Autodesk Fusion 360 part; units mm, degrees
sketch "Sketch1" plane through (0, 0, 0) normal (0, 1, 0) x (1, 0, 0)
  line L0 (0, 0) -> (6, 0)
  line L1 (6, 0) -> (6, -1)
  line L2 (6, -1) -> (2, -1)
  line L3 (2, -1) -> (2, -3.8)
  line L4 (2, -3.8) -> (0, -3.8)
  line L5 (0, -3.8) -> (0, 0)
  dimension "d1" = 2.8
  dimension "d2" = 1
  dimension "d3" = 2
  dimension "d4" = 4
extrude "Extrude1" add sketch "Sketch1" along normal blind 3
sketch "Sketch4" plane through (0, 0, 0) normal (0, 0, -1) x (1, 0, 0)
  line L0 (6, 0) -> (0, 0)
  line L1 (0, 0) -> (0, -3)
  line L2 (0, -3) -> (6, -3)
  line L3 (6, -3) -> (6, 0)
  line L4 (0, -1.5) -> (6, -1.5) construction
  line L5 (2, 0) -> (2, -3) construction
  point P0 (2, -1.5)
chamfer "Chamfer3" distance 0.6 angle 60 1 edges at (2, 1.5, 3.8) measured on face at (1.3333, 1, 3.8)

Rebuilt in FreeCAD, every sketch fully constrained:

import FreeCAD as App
import Part
import Sketcher


def edges_at(feature, points):
    """Names of the edges that pass closest to the given points."""
    edges = feature.Shape.Edges
    near = lambda p: min(range(len(edges)), key=lambda i: edges[i].distToShape(Part.Vertex(*p))[0])
    return sorted({f"Edge{near(p) + 1}" for p in points})


def add_polygon(sketch, points):
    """Adds a closed chain of lines whose ends are joined by coincident constraints."""
    first, n = sketch.GeometryCount, len(points)
    for a, b in zip(points, points[1:] + points[:1]):
        sketch.addGeometry(Part.LineSegment(App.Vector(*a, 0), App.Vector(*b, 0)), False)
    for i in range(n):
        sketch.addConstraint(Sketcher.Constraint("Coincident", first + i, 2, first + (i + 1) % n, 1))

doc = App.newDocument("Part")
body = doc.addObject("PartDesign::Body", "Body")

sketch1 = body.newObject("Sketcher::SketchObject", "Sketch")
sketch1.AttachmentSupport = (doc.getObject("XZ_Plane"), [""])
sketch1.MapMode = "FlatFace"
add_polygon(sketch1, [(6, 0), (0, 0), (0, 3.8), (2, 3.8), (2, 1), (6, 1)])
sketch1.addConstraint([
    Sketcher.Constraint("Horizontal", 0),
    Sketcher.Constraint("Vertical", 1),
    Sketcher.Constraint("Horizontal", 2),
    Sketcher.Constraint("Vertical", 3),
    Sketcher.Constraint("Horizontal", 4),
    Sketcher.Constraint("Vertical", 5),
    Sketcher.Constraint("Coincident", 0, 2, -1, 1),
    Sketcher.Constraint("DistanceX", 2, 1, 2, 2, 2.0),
    Sketcher.Constraint("DistanceX", 4, 1, 4, 2, 4.0),
    Sketcher.Constraint("DistanceY", 5, 2, 5, 1, 1.0),
    Sketcher.Constraint("DistanceY", 3, 2, 3, 1, 2.8),
])
pad1 = body.newObject("PartDesign::Pad", "Pad")
pad1.Profile = sketch1
pad1.Length = 3
pad1.Reversed = True
doc.recompute()

chamfer = body.newObject("PartDesign::Chamfer", "Chamfer")
chamfer.Base = (pad1, edges_at(pad1, [(2, 1.5, 3.8)]))
chamfer.ChamferType = "Distance and Angle"
chamfer.Size = 0.6
chamfer.Angle = 60

doc.recompute()
